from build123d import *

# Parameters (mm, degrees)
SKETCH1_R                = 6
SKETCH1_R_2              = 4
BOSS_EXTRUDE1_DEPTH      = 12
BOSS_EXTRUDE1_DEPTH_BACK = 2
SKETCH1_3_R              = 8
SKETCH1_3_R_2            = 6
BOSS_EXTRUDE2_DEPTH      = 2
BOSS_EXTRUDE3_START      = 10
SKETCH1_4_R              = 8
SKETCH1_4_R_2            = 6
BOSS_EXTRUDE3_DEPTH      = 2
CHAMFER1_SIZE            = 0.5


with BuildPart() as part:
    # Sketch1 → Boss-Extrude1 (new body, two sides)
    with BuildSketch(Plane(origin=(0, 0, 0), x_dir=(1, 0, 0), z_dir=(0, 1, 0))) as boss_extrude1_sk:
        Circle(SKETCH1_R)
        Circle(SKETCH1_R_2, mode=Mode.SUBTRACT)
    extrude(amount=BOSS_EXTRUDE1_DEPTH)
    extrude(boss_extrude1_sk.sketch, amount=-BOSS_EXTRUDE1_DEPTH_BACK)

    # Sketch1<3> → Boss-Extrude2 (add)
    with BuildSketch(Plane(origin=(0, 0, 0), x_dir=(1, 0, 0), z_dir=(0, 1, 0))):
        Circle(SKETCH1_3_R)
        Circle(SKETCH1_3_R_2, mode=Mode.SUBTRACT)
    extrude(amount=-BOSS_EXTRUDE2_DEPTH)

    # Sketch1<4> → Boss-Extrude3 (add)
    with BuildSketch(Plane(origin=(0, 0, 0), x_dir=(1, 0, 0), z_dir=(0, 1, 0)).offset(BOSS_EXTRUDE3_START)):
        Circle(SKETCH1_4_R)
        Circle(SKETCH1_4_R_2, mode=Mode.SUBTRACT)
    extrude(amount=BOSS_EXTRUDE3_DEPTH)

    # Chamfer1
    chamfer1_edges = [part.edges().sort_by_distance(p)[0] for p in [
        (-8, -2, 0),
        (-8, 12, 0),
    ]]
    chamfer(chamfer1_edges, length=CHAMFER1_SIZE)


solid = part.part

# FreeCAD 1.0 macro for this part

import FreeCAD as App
import Part
import Sketcher

V = App.Vector
Q = App.Units.Quantity


def edges_at(feature, points):
    """Names of the edges that pass closest to the given points."""
    edges = feature.Shape.Edges
    near = lambda p: min(range(len(edges)), key=lambda i: edges[i].distToShape(Part.Vertex(*p))[0])
    return sorted({f"Edge{near(p) + 1}" for p in points})

doc = App.newDocument("Part")
body = doc.addObject("PartDesign::Body", "Body")

# Sketch on XZ plane
sketch1 = doc.addObject("Sketcher::SketchObject", "Sketch")
body.addObject(sketch1)
sketch1.AttachmentSupport = (doc.XZ_Plane, [""])
sketch1.MapMode = "FlatFace"
sketch1.addGeometry([
    Part.Circle(V(0, 0, 0), V(0, 0, 1), 6),
    Part.Circle(V(0, 0, 0), V(0, 0, 1), 4),
], False)
sketch1.addConstraint([
    Sketcher.Constraint("Coincident", 0, 3, -1, 1),
    Sketcher.Constraint("Coincident", 1, 3, -1, 1),
    Sketcher.Constraint("Diameter", 0, Q("12 mm")),
    Sketcher.Constraint("Diameter", 1, Q("8 mm")),
])
pad1 = doc.addObject("PartDesign::Pad", "Pad")
body.addObject(pad1)
pad1.Profile = sketch1
pad1.Type = "TwoLengths"
pad1.Length = 12
pad1.Length2 = 2
pad1.Reversed = True

# Sketch on XZ plane
sketch2 = doc.addObject("Sketcher::SketchObject", "Sketch001")
body.addObject(sketch2)
sketch2.AttachmentSupport = (doc.XZ_Plane, [""])
sketch2.MapMode = "FlatFace"
sketch2.addGeometry([
    Part.Circle(V(0, 0, 0), V(0, 0, 1), 8),
    Part.Circle(V(0, 0, 0), V(0, 0, 1), 6),
], False)
sketch2.addConstraint([
    Sketcher.Constraint("Coincident", 0, 3, -1, 1),
    Sketcher.Constraint("Coincident", 1, 3, -1, 1),
    Sketcher.Constraint("Diameter", 0, Q("16 mm")),
    Sketcher.Constraint("Diameter", 1, Q("12 mm")),
])
pad2 = doc.addObject("PartDesign::Pad", "Pad001")
body.addObject(pad2)
pad2.Profile = sketch2
pad2.Length = 2

# Sketch on XZ plane
sketch3 = doc.addObject("Sketcher::SketchObject", "Sketch002")
body.addObject(sketch3)
sketch3.AttachmentSupport = (doc.XZ_Plane, [""])
sketch3.MapMode = "FlatFace"
sketch3.AttachmentOffset = App.Placement(V(0, 0, -10), App.Rotation())
sketch3.addGeometry([
    Part.Circle(V(0, 0, 0), V(0, 0, 1), 8),
    Part.Circle(V(0, 0, 0), V(0, 0, 1), 6),
], False)
sketch3.addConstraint([
    Sketcher.Constraint("Coincident", 0, 3, -1, 1),
    Sketcher.Constraint("Coincident", 1, 3, -1, 1),
    Sketcher.Constraint("Diameter", 0, Q("16 mm")),
    Sketcher.Constraint("Diameter", 1, Q("12 mm")),
])
pad3 = doc.addObject("PartDesign::Pad", "Pad002")
body.addObject(pad3)
pad3.Profile = sketch3
pad3.Length = 2
pad3.Reversed = True
doc.recompute()

chamfer = doc.addObject("PartDesign::Chamfer", "Chamfer")
body.addObject(chamfer)
chamfer.Base = (pad3, edges_at(pad3, [(-8, -2, 0), (-8, 12, 0)]))
chamfer.Size = 0.5

doc.recompute()
